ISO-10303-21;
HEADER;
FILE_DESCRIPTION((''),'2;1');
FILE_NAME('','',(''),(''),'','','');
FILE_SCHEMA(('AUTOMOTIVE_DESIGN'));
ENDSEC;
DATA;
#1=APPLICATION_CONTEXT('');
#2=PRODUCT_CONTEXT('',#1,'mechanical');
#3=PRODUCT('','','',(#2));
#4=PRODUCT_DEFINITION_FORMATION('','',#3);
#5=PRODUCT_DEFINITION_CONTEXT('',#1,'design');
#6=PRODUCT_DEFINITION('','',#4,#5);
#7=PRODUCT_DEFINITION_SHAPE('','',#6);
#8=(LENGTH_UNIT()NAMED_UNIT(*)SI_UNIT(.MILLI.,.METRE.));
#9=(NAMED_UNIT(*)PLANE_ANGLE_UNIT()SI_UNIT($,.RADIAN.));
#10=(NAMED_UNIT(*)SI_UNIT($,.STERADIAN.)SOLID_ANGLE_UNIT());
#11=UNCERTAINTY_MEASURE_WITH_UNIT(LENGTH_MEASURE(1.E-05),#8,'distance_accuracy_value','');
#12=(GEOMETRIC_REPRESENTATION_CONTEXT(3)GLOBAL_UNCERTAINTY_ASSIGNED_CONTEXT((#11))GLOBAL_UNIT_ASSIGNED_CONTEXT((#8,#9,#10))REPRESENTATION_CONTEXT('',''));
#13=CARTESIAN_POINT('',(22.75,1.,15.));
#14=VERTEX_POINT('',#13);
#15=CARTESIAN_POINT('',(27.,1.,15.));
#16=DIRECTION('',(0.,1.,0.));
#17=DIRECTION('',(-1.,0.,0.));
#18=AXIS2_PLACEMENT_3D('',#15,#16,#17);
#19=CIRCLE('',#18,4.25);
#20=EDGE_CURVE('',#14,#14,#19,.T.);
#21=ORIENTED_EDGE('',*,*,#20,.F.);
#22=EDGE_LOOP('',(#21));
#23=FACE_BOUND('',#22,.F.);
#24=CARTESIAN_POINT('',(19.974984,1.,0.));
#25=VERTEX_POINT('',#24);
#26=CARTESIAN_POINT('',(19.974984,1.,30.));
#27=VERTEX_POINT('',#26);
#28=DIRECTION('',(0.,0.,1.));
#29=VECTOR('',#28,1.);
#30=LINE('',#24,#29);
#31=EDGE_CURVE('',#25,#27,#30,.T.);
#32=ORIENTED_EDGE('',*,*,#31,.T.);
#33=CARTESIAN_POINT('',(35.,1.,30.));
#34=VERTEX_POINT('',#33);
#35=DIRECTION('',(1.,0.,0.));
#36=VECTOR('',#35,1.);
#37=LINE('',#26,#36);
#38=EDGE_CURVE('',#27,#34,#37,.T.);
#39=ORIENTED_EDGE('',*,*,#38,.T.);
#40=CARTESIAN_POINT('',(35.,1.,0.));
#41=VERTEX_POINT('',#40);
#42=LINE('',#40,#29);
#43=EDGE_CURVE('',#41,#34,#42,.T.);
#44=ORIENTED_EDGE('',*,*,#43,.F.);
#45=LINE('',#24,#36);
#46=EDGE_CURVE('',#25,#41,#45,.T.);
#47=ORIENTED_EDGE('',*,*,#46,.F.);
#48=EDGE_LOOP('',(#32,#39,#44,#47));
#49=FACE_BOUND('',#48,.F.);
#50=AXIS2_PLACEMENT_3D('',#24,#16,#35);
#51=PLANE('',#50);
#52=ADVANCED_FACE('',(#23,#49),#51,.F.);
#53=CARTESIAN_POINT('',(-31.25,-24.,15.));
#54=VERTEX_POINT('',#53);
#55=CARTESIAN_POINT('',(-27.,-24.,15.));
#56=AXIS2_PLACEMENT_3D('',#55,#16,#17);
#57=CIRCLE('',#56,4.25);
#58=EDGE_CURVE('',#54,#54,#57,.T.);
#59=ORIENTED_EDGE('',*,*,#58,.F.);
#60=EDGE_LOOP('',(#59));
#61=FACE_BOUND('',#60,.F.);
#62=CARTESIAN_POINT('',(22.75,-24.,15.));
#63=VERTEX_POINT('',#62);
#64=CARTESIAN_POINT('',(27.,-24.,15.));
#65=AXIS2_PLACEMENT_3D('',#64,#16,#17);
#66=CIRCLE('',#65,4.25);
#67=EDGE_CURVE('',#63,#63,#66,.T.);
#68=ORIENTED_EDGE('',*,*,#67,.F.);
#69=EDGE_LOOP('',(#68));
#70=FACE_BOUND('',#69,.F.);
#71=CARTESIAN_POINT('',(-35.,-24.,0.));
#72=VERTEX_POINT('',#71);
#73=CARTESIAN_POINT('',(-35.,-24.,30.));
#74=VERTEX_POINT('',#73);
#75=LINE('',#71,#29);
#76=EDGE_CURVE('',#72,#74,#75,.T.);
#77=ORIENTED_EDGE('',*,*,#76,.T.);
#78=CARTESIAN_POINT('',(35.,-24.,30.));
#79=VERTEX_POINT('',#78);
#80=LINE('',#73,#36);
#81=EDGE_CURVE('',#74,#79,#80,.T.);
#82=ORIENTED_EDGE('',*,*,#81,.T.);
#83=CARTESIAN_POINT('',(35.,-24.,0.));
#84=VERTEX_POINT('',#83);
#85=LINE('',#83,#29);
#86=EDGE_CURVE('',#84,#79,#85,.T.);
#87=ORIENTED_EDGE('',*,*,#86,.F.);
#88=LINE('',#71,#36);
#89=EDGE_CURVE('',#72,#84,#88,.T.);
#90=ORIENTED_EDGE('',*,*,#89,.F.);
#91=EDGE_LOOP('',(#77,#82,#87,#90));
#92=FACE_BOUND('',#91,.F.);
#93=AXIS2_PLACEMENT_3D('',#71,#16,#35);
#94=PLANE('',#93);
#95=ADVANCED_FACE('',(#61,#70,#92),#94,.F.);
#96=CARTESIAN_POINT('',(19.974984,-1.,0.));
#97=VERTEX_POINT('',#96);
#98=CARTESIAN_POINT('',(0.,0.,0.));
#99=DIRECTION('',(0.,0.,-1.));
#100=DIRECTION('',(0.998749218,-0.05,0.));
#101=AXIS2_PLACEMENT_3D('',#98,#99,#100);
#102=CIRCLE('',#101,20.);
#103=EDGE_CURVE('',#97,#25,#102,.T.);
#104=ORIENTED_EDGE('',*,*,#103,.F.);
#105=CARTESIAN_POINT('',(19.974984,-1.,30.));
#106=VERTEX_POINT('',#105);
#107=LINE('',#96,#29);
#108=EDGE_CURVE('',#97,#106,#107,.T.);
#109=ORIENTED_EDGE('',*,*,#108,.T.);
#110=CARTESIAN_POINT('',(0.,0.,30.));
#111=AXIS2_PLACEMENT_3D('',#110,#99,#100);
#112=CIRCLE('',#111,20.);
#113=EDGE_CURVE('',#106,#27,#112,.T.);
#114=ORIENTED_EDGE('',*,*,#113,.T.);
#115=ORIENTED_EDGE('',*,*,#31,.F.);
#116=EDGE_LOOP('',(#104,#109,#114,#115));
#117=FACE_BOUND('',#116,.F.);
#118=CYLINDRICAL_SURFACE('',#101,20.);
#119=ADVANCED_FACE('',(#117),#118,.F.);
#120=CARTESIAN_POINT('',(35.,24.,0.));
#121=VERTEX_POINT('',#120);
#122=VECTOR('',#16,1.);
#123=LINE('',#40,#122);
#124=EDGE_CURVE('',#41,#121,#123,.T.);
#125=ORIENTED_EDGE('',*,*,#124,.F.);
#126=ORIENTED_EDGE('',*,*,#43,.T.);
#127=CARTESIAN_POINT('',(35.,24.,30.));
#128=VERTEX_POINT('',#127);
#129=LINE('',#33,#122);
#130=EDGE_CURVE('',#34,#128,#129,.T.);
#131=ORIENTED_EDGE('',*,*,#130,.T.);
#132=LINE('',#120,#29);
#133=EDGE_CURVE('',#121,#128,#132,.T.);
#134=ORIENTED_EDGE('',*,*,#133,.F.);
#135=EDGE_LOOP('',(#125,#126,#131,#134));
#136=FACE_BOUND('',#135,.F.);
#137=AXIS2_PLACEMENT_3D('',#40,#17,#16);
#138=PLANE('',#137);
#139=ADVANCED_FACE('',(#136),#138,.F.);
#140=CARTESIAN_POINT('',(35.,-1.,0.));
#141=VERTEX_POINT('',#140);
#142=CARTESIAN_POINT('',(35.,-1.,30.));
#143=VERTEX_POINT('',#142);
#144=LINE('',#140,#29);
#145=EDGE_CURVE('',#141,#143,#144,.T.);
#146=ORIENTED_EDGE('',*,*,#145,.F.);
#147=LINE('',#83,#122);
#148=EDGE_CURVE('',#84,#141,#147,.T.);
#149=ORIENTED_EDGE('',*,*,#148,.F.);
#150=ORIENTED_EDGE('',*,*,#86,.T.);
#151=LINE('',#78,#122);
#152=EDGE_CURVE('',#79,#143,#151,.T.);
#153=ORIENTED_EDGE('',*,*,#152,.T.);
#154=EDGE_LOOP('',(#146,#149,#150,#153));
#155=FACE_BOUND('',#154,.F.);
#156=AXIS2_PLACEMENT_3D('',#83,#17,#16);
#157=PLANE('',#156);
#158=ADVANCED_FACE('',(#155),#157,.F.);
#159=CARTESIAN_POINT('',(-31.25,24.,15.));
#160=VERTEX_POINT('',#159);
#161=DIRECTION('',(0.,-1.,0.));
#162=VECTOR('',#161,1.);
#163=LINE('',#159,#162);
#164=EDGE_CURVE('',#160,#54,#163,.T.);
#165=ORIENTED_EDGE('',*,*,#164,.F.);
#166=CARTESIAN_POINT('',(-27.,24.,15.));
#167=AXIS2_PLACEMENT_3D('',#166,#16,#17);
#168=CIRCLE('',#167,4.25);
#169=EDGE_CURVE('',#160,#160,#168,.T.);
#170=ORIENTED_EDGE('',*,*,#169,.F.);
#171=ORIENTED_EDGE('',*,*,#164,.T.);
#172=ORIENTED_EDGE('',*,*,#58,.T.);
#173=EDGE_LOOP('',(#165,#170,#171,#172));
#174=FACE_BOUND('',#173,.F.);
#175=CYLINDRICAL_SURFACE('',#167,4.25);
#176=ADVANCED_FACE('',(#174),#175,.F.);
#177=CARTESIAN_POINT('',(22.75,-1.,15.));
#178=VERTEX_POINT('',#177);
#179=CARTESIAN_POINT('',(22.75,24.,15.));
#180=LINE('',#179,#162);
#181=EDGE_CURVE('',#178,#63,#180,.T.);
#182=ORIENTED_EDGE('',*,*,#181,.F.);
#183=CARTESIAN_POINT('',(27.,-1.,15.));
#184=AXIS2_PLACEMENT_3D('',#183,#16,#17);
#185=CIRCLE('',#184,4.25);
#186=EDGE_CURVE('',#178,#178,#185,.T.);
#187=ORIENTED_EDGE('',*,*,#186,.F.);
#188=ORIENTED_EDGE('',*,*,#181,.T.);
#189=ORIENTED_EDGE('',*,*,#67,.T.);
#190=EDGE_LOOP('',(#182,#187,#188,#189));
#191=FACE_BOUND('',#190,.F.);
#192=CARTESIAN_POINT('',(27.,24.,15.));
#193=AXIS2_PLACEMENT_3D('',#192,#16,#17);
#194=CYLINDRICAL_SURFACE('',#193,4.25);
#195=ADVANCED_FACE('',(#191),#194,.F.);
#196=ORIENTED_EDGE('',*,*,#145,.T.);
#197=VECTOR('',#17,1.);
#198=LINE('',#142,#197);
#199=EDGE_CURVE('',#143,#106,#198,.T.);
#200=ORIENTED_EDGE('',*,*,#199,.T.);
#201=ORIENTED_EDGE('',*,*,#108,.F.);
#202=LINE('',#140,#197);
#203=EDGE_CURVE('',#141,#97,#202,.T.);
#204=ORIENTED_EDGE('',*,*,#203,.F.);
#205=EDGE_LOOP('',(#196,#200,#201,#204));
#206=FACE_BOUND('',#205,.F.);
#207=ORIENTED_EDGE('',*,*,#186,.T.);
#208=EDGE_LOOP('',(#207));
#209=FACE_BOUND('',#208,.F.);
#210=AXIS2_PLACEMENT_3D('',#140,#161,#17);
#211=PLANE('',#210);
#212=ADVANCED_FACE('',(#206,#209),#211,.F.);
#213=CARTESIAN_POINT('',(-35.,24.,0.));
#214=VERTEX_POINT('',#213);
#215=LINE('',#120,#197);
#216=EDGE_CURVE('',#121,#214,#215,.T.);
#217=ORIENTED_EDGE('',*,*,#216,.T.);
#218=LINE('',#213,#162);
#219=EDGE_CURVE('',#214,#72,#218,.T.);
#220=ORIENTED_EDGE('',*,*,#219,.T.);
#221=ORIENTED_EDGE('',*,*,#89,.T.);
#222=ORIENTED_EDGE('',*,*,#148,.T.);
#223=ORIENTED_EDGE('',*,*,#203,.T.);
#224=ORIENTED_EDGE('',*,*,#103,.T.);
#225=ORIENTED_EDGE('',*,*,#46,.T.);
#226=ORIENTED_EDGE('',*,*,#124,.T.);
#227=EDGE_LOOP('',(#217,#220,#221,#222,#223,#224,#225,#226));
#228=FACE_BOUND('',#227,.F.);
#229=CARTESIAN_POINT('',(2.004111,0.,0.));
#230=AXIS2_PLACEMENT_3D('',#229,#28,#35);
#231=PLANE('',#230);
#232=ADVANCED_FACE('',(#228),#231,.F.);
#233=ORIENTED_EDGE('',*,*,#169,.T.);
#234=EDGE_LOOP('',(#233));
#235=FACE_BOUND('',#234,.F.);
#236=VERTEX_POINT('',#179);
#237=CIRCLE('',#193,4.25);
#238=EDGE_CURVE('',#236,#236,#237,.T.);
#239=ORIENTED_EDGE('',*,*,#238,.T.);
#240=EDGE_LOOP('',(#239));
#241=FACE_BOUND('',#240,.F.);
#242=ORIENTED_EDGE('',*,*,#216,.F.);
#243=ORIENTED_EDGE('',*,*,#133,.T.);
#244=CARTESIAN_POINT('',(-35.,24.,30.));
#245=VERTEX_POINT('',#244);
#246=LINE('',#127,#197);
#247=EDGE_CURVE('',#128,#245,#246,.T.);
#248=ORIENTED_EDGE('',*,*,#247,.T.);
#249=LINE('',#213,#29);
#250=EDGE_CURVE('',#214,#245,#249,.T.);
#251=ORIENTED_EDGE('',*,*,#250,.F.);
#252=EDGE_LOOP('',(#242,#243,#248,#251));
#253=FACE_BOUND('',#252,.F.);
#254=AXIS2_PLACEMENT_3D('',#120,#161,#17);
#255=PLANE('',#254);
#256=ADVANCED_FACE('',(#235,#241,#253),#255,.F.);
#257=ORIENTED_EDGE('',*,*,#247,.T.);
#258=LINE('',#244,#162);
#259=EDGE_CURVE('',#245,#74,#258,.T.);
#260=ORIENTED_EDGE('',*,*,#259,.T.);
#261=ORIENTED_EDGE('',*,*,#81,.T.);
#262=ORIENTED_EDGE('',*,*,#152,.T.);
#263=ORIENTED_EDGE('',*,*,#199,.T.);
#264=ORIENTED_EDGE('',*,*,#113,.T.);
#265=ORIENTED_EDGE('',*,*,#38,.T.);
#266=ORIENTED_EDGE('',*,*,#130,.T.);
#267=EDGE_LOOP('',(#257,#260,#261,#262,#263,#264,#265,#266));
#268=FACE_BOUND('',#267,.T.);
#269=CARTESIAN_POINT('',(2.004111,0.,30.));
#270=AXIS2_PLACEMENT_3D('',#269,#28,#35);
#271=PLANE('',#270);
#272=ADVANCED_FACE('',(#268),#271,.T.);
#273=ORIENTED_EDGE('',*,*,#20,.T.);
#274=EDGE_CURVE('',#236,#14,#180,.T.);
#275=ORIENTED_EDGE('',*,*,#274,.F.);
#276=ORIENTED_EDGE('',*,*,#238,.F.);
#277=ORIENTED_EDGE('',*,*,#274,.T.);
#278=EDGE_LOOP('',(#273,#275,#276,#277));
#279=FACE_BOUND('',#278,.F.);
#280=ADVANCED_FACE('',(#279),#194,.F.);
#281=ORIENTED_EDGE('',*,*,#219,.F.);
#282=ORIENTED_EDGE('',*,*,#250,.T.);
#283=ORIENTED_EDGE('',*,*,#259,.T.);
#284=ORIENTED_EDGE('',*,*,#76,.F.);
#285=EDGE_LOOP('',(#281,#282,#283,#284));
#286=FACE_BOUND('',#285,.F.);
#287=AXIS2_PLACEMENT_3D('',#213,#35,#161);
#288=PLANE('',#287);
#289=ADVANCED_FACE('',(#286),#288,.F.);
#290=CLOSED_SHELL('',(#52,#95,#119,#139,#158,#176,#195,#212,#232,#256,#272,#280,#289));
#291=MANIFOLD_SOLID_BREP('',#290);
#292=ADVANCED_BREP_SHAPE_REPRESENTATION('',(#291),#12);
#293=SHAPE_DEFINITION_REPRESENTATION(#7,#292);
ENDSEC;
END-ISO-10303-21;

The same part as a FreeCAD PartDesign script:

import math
import FreeCAD as App
import Part
import Sketcher

V = App.Vector

doc = App.newDocument("Part")
body = doc.addObject("PartDesign::Body", "Body")

sketch1 = doc.addObject("Sketcher::SketchObject", "Sketch")
body.addObject(sketch1)
sketch1.AttachmentSupport = (doc.XY_Plane, [""])
sketch1.MapMode = "FlatFace"
sketch1.addGeometry([
    Part.LineSegment(V(35, 24, 0), V(-35, 24, 0)),
    Part.LineSegment(V(-35, 24, 0), V(-35, -24, 0)),
    Part.LineSegment(V(-35, -24, 0), V(35, -24, 0)),
    Part.LineSegment(V(35, -24, 0), V(35, -1, 0)),
    Part.LineSegment(V(35, -1, 0), V(19.974984, -1, 0)),
    Part.ArcOfCircle(Part.Circle(V(0, 0, 0), V(0, 0, 1), 20), math.radians(2.865984), math.radians(357.134016)),
    Part.LineSegment(V(19.974984, 1, 0), V(35, 1, 0)),
    Part.LineSegment(V(35, 1, 0), V(35, 24, 0)),
], False)
sketch1.addConstraint([
    Sketcher.Constraint("Coincident", 0, 2, 1, 1),
    Sketcher.Constraint("Coincident", 1, 2, 2, 1),
    Sketcher.Constraint("Coincident", 2, 2, 3, 1),
    Sketcher.Constraint("Coincident", 3, 2, 4, 1),
    Sketcher.Constraint("Coincident", 4, 2, 5, 2),
    Sketcher.Constraint("Coincident", 5, 1, 6, 1),
    Sketcher.Constraint("Coincident", 6, 2, 7, 1),
    Sketcher.Constraint("Coincident", 7, 2, 0, 1),
    Sketcher.Constraint("Horizontal", 0),
    Sketcher.Constraint("Vertical", 1),
    Sketcher.Constraint("Horizontal", 2),
    Sketcher.Constraint("Vertical", 3),
    Sketcher.Constraint("Horizontal", 4),
    Sketcher.Constraint("Horizontal", 6),
    Sketcher.Constraint("Vertical", 7),
    Sketcher.Constraint("Coincident", 5, 3, -1, 1),
    Sketcher.Constraint("Symmetric", 0, 2, 2, 2, -1, 1),
    Sketcher.Constraint("Symmetric", 3, 2, 6, 2, -1),
    Sketcher.Constraint("Radius", 5, 20.0),
    Sketcher.Constraint("DistanceX", 0, 2, 0, 1, 70.0),
    Sketcher.Constraint("DistanceY", 1, 2, 1, 1, 48.0),
    Sketcher.Constraint("DistanceY", 3, 1, 3, 2, 23.0),
])
pad1 = doc.addObject("PartDesign::Pad", "Pad")
body.addObject(pad1)
pad1.Profile = sketch1
pad1.Length = 30

sketch2 = doc.addObject("Sketcher::SketchObject", "Sketch001")
body.addObject(sketch2)
sketch2.AttachmentSupport = (doc.XZ_Plane, [""])
sketch2.MapMode = "FlatFace"
sketch2.AttachmentOffset = App.Placement(V(0, 0, -24), App.Rotation())
sketch2.addGeometry([
    Part.Circle(V(-27, 15, 0), V(0, 0, 1), 4.25),
    Part.Circle(V(27, 15, 0), V(0, 0, 1), 4.25),
], False)
sketch2.addConstraint([
    Sketcher.Constraint("Equal", 0, 1),
    Sketcher.Constraint("Symmetric", 0, 3, 1, 3, -2),
    Sketcher.Constraint("Diameter", 0, 8.5),
    Sketcher.Constraint("DistanceX", 0, 3, -1, 1, 27.0),
    Sketcher.Constraint("DistanceY", -1, 1, 0, 3, 15.0),
])
pocket1 = doc.addObject("PartDesign::Pocket", "Pocket")
body.addObject(pocket1)
pocket1.Profile = sketch2
pocket1.Type = "ThroughAll"
pocket1.Reversed = True

doc.recompute()
